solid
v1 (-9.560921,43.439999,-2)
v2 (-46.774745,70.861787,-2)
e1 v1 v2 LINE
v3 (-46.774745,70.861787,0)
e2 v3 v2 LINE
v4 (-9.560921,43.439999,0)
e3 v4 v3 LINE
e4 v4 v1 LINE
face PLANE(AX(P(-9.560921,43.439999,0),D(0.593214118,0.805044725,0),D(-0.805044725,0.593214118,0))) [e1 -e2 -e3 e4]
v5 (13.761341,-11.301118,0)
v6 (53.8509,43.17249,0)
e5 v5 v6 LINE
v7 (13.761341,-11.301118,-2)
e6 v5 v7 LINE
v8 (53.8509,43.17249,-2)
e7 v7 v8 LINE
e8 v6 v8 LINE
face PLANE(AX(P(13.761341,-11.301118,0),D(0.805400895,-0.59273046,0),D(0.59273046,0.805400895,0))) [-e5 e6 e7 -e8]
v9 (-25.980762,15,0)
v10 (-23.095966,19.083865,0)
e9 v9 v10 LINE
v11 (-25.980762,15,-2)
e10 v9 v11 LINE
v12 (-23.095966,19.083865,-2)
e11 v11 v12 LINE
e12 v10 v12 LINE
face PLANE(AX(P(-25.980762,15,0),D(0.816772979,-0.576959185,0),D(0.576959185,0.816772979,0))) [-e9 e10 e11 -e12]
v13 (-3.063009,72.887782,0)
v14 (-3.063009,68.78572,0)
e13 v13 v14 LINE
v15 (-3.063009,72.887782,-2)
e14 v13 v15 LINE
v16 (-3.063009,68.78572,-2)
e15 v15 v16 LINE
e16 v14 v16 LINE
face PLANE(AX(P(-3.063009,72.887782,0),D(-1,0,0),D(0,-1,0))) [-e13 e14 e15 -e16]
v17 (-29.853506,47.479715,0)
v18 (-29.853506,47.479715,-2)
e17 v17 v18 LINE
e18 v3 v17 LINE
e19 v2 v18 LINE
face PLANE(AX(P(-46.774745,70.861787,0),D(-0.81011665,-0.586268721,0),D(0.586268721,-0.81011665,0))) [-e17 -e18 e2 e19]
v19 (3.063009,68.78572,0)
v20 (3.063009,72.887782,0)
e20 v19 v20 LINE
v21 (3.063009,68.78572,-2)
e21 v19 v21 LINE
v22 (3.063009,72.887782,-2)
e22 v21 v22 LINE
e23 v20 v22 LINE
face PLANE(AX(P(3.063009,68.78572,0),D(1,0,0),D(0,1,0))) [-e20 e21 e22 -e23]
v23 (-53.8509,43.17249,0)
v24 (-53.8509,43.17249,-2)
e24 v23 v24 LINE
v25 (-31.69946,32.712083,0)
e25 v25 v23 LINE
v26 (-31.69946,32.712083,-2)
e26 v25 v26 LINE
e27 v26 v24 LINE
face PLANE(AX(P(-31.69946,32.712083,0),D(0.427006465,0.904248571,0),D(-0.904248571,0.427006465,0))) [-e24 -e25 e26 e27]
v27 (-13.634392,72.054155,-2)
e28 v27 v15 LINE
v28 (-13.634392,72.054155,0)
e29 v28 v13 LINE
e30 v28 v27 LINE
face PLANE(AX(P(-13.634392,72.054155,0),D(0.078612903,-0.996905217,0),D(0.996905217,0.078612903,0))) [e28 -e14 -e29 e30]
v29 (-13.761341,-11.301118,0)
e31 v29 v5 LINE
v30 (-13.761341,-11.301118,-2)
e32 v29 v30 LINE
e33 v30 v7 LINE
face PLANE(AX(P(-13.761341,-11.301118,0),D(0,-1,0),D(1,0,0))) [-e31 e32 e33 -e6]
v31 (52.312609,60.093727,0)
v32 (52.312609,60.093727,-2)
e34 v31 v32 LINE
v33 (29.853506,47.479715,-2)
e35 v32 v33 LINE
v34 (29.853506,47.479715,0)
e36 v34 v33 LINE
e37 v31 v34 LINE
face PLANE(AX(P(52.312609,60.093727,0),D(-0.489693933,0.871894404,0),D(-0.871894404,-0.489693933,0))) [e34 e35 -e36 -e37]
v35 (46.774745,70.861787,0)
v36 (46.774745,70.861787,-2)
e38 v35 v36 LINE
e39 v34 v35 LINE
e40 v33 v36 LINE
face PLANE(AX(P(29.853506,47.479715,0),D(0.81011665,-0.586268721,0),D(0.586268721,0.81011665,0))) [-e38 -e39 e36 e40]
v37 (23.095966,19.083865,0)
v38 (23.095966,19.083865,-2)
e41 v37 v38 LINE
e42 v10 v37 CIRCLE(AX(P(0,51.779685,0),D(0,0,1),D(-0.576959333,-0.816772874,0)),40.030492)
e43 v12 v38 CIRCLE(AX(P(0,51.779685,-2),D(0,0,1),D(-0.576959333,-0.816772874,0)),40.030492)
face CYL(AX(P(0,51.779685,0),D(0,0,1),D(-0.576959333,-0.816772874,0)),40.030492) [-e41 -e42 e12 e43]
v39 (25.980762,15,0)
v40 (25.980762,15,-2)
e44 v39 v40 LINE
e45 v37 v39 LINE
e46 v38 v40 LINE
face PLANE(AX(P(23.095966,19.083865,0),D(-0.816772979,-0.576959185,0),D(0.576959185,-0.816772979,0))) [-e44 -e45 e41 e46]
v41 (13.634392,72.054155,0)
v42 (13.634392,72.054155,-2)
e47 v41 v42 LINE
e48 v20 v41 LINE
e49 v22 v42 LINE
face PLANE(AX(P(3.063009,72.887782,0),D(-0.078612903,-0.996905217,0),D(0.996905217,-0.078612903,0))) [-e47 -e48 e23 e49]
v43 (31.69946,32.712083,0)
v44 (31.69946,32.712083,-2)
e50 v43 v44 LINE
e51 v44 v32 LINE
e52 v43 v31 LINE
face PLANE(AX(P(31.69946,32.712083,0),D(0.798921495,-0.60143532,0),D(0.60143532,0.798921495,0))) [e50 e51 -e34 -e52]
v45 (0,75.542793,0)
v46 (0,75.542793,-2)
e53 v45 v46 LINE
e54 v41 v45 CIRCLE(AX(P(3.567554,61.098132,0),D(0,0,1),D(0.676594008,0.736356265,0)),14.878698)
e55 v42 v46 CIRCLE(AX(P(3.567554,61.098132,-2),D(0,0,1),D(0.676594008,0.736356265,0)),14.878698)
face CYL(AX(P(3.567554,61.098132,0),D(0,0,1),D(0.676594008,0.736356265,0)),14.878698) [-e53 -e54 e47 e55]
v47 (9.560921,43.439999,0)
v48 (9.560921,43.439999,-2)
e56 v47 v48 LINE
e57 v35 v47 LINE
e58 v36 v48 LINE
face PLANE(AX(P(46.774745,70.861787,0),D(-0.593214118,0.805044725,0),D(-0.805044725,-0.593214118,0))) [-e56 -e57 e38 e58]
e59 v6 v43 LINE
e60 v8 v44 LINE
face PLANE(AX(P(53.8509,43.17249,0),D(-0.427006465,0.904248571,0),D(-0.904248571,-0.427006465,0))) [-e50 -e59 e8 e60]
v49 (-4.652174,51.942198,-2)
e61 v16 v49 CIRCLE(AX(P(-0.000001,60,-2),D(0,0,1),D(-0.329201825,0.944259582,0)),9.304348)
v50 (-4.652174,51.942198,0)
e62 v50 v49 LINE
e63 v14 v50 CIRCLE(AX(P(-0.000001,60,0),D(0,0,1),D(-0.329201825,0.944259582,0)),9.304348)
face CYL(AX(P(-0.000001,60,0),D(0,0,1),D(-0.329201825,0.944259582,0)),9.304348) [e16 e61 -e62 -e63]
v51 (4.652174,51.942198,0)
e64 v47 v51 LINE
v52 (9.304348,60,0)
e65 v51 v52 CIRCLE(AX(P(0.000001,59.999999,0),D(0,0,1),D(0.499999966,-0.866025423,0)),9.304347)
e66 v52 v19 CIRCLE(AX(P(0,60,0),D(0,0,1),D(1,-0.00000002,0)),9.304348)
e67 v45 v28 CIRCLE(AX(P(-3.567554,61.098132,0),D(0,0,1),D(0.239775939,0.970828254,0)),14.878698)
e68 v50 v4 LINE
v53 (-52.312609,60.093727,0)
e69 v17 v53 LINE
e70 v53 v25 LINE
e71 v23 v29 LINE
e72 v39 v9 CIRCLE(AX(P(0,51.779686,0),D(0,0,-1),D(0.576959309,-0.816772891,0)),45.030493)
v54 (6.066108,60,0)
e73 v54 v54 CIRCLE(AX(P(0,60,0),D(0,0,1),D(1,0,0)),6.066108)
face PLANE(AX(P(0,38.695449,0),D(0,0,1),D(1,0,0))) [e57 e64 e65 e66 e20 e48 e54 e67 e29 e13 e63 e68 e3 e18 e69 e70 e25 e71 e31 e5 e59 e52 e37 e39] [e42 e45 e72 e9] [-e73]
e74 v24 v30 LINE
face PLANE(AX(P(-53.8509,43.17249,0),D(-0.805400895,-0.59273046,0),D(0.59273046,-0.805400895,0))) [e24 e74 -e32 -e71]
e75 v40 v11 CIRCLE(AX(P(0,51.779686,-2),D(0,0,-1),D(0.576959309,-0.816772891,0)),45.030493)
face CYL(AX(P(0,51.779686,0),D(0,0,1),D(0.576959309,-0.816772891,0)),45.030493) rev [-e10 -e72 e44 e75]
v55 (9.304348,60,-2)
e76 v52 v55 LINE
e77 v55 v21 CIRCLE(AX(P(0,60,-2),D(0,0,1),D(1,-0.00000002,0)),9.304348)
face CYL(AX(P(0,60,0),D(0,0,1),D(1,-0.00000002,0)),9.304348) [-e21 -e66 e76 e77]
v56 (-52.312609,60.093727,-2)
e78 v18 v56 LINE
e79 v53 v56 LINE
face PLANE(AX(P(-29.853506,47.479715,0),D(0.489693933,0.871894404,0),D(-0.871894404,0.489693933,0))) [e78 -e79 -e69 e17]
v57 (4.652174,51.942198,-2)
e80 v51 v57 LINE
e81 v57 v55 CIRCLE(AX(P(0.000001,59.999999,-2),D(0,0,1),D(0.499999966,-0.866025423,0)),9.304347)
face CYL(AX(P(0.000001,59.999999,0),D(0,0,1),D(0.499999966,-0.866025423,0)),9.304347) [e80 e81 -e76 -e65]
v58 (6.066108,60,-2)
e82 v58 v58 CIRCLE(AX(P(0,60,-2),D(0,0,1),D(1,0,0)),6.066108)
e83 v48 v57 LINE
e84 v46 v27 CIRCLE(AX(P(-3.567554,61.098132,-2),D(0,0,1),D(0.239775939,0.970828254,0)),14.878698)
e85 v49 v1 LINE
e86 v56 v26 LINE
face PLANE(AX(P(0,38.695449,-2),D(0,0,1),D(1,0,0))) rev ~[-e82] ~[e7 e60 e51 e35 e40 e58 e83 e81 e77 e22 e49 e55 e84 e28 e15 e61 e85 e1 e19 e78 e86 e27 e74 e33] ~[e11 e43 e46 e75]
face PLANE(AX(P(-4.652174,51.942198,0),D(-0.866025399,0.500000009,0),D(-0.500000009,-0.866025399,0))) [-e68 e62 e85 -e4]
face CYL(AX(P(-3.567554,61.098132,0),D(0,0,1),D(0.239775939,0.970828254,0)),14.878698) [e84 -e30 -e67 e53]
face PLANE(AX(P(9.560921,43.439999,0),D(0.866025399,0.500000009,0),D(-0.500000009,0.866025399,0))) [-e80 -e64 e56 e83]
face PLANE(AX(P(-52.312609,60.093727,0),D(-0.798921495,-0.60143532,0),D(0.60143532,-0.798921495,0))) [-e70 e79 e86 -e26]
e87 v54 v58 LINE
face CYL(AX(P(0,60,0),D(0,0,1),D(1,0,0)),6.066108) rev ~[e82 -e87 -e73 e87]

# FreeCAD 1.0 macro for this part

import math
import FreeCAD as App
import Part
import Sketcher
Q = App.Units.Quantity

doc = App.newDocument("Part")
body = doc.addObject("PartDesign::Body", "Body")

# Sketch on XY plane
sketch1 = doc.addObject("Sketcher::SketchObject", "Sketch")
body.addObject(sketch1)
sketch1.AttachmentSupport = (doc.XY_Plane, [""])
sketch1.MapMode = "FlatFace"
sketch1.addGeometry([
    Part.LineSegment(App.Vector(-4.652174, 51.942198, 0), App.Vector(-9.560921, 43.439999, 0)),  # 0
    Part.LineSegment(App.Vector(-9.560921, 43.439999, 0), App.Vector(-46.774745, 70.861787, 0)),  # 1
    Part.LineSegment(App.Vector(-46.774745, 70.861787, 0), App.Vector(-29.853506, 47.479715, 0)),  # 2
    Part.LineSegment(App.Vector(-29.853506, 47.479715, 0), App.Vector(-52.312609, 60.093727, 0)),  # 3
    Part.LineSegment(App.Vector(-52.312609, 60.093727, 0), App.Vector(-31.69946, 32.712083, 0)),  # 4
    Part.LineSegment(App.Vector(-31.69946, 32.712083, 0), App.Vector(-53.8509, 43.17249, 0)),  # 5
    Part.LineSegment(App.Vector(-53.8509, 43.17249, 0), App.Vector(-13.761341, -11.301118, 0)),  # 6
    Part.LineSegment(App.Vector(-13.761341, -11.301118, 0), App.Vector(13.761341, -11.301118, 0)),  # 7
    Part.LineSegment(App.Vector(13.761341, -11.301118, 0), App.Vector(53.8509, 43.17249, 0)),  # 8
    Part.LineSegment(App.Vector(53.8509, 43.17249, 0), App.Vector(31.69946, 32.712083, 0)),  # 9
    Part.LineSegment(App.Vector(31.69946, 32.712083, 0), App.Vector(52.312609, 60.093727, 0)),  # 10
    Part.LineSegment(App.Vector(52.312609, 60.093727, 0), App.Vector(29.853506, 47.479715, 0)),  # 11
    Part.LineSegment(App.Vector(29.853506, 47.479715, 0), App.Vector(46.774745, 70.861787, 0)),  # 12
    Part.LineSegment(App.Vector(46.774745, 70.861787, 0), App.Vector(9.560921, 43.439999, 0)),  # 13
    Part.LineSegment(App.Vector(9.560921, 43.439999, 0), App.Vector(4.652174, 51.942198, 0)),  # 14
    Part.ArcOfCircle(Part.Circle(App.Vector(0.000001, 59.999999, 0), App.Vector(0, 0, 1), 9.304347), math.radians(-60.000002), math.radians(0.000004)),  # 15
    Part.ArcOfCircle(Part.Circle(App.Vector(0, 60, 0), App.Vector(0, 0, 1), 9.304348), math.radians(-0.000001), math.radians(70.779657)),  # 16
    Part.LineSegment(App.Vector(3.063009, 68.78572, 0), App.Vector(3.063009, 72.887782, 0)),  # 17
    Part.LineSegment(App.Vector(3.063009, 72.887782, 0), App.Vector(13.634392, 72.054155, 0)),  # 18
    Part.ArcOfCircle(Part.Circle(App.Vector(3.567554, 61.098132, 0), App.Vector(0, 0, 1), 14.878698), math.radians(47.421943), math.radians(103.873316)),  # 19
    Part.ArcOfCircle(Part.Circle(App.Vector(-3.567554, 61.098132, 0), App.Vector(0, 0, 1), 14.878698), math.radians(76.126684), math.radians(132.578057)),  # 20
    Part.LineSegment(App.Vector(-13.634392, 72.054155, 0), App.Vector(-3.063009, 72.887782, 0)),  # 21
    Part.LineSegment(App.Vector(-3.063009, 72.887782, 0), App.Vector(-3.063009, 68.78572, 0)),  # 22
    Part.ArcOfCircle(Part.Circle(App.Vector(-0.000001, 60, 0), App.Vector(0, 0, 1), 9.304348), math.radians(109.220337), math.radians(240.000005)),  # 23
    Part.LineSegment(App.Vector(23.095966, 19.083865, 0), App.Vector(25.980762, 15, 0)),  # 24
    Part.ArcOfCircle(Part.Circle(App.Vector(0, 51.779686, 0), App.Vector(0, 0, 1), 45.030493), math.radians(-125.23696), math.radians(-54.76304)),  # 25
    Part.LineSegment(App.Vector(-25.980762, 15, 0), App.Vector(-23.095966, 19.083865, 0)),  # 26
    Part.ArcOfCircle(Part.Circle(App.Vector(0, 51.779685, 0), App.Vector(0, 0, 1), 40.030492), math.radians(-125.236961), math.radians(-54.763039)),  # 27
    Part.Circle(App.Vector(0, 60, 0), App.Vector(0, 0, 1), 6.066108),  # 28
], False)
sketch1.addConstraint([
    Sketcher.Constraint("Coincident", 0, 2, 1, 1),
    Sketcher.Constraint("Coincident", 1, 2, 2, 1),
    Sketcher.Constraint("Coincident", 2, 2, 3, 1),
    Sketcher.Constraint("Coincident", 3, 2, 4, 1),
    Sketcher.Constraint("Coincident", 4, 2, 5, 1),
    Sketcher.Constraint("Coincident", 5, 2, 6, 1),
    Sketcher.Constraint("Coincident", 6, 2, 7, 1),
    Sketcher.Constraint("Coincident", 7, 2, 8, 1),
    Sketcher.Constraint("Coincident", 8, 2, 9, 1),
    Sketcher.Constraint("Coincident", 9, 2, 10, 1),
    Sketcher.Constraint("Coincident", 10, 2, 11, 1),
    Sketcher.Constraint("Coincident", 11, 2, 12, 1),
    Sketcher.Constraint("Coincident", 12, 2, 13, 1),
    Sketcher.Constraint("Coincident", 13, 2, 14, 1),
    Sketcher.Constraint("Coincident", 14, 2, 15, 1),
    Sketcher.Constraint("Tangent", 15, 2, 16, 1),
    Sketcher.Constraint("Coincident", 16, 2, 17, 1),
    Sketcher.Constraint("Coincident", 17, 2, 18, 1),
    Sketcher.Constraint("Coincident", 18, 2, 19, 1),
    Sketcher.Constraint("Coincident", 19, 2, 20, 1),
    Sketcher.Constraint("Coincident", 20, 2, 21, 1),
    Sketcher.Constraint("Coincident", 21, 2, 22, 1),
    Sketcher.Constraint("Coincident", 22, 2, 23, 1),
    Sketcher.Constraint("Coincident", 23, 2, 0, 1),
    Sketcher.Constraint("Coincident", 24, 2, 25, 2),
    Sketcher.Constraint("Coincident", 25, 1, 26, 1),
    Sketcher.Constraint("Coincident", 26, 2, 27, 1),
    Sketcher.Constraint("Coincident", 27, 2, 24, 1),
    Sketcher.Constraint("Horizontal", 7),
    Sketcher.Constraint("Vertical", 17),
    Sketcher.Constraint("Vertical", 22),
    Sketcher.Constraint("Coincident", 23, 3, 15, 3),
    Sketcher.Constraint("Coincident", 27, 3, 25, 3),
    Sketcher.Constraint("Coincident", 28, 3, 15, 3),
    Sketcher.Constraint("Equal", 15, 16),
    Sketcher.Constraint("Equal", 19, 20),
    Sketcher.Constraint("Equal", 16, 23),
    Sketcher.Constraint("Symmetric", 19, 3, 20, 3, -2),
    Sketcher.Constraint("Symmetric", 5, 2, 8, 2, -2),
    Sketcher.Constraint("Symmetric", 4, 2, 9, 2, -2),
    Sketcher.Constraint("Symmetric", 3, 2, 10, 2, -2),
    Sketcher.Constraint("Symmetric", 2, 2, 11, 2, -2),
    Sketcher.Constraint("Symmetric", 1, 2, 12, 2, -2),
    Sketcher.Constraint("Symmetric", 0, 2, 13, 2, -2),
    Sketcher.Constraint("Symmetric", 17, 2, 21, 2, -2),
    Sketcher.Constraint("Symmetric", 14, 2, 23, 2, -2),
    Sketcher.Constraint("Symmetric", 24, 2, 25, 1, -2),
    Sketcher.Constraint("Horizontal", 28, 3, 15, 2),
    Sketcher.Constraint("Horizontal", 18, 2, 20, 2),
    Sketcher.Constraint("Horizontal", 26, 2, 27, 2),
    Sketcher.Constraint("Equal", 6, 8),
    Sketcher.Constraint("Angle", 0, Q("-120.000001 deg")),
    Sketcher.Constraint("Distance", 24, Q("5 mm")),
    Sketcher.Constraint("DistanceY", -1, 1, 15, 3, Q("59.999999 mm")),
    Sketcher.Constraint("DistanceY", -1, 1, 24, 2, Q("15 mm")),
    Sketcher.Constraint("Radius", 19, Q("14.878698 mm")),
    Sketcher.Constraint("DistanceY", -1, 1, 0, 2, Q("43.439999 mm")),
    Sketcher.Constraint("Radius", 16, Q("9.304348 mm")),
    Sketcher.Constraint("Diameter", 28, Q("12.132216 mm")),
    Sketcher.Constraint("Radius", 25, Q("45.030493 mm")),
    Sketcher.Constraint("Distance", 2, Q("28.862599 mm")),
    Sketcher.Constraint("Distance", 18, Q("10.604201 mm")),
    Sketcher.Constraint("DistanceX", 7, 1, 7, 2, Q("27.522682 mm")),
    Sketcher.Constraint("DistanceX", 5, 2, -1, 1, Q("53.8509 mm")),
    Sketcher.Constraint("DistanceY", 6, 2, 4, 2, Q("44.013201 mm")),
    Sketcher.Constraint("DistanceX", 4, 2, 7, 2, Q("45.460801 mm")),
    Sketcher.Constraint("DistanceY", 14, 2, 15, 3, Q("8.057801 mm")),
    Sketcher.Constraint("DistanceX", 20, 2, 17, 2, Q("16.697401 mm")),
    Sketcher.Constraint("DistanceX", 4, 2, 25, 1, Q("5.718698 mm")),
    Sketcher.Constraint("Distance", 3, Q("25.758971 mm")),
    Sketcher.Constraint("Distance", 4, Q("34.27326 mm")),
    Sketcher.Constraint("Distance", 5, Q("24.497069 mm")),
    Sketcher.Constraint("DistanceY", 17, 1, 17, 2, Q("4.102062 mm")),
    Sketcher.Constraint("DistanceX", 3, 2, -1, 1, Q("52.312609 mm")),
    Sketcher.Constraint("DistanceY", -1, 1, 5, 2, Q("43.17249 mm")),
    Sketcher.Constraint("DistanceX", -1, 1, 16, 2, Q("3.063009 mm")),
    Sketcher.Constraint("DistanceX", 1, 2, 20, 3, Q("43.207191 mm")),
    Sketcher.Constraint("DistanceY", 0, 2, 1, 2, Q("27.421788 mm")),
    Sketcher.Constraint("DistanceX", 1, 2, 2, 2, Q("16.921239 mm")),
    Sketcher.Constraint("DistanceX", 2, 2, 26, 2, Q("6.75754 mm")),
])
pad1 = doc.addObject("PartDesign::Pad", "Pad")
body.addObject(pad1)
pad1.Profile = sketch1
pad1.Length = 2
pad1.Reversed = True

doc.recompute()
